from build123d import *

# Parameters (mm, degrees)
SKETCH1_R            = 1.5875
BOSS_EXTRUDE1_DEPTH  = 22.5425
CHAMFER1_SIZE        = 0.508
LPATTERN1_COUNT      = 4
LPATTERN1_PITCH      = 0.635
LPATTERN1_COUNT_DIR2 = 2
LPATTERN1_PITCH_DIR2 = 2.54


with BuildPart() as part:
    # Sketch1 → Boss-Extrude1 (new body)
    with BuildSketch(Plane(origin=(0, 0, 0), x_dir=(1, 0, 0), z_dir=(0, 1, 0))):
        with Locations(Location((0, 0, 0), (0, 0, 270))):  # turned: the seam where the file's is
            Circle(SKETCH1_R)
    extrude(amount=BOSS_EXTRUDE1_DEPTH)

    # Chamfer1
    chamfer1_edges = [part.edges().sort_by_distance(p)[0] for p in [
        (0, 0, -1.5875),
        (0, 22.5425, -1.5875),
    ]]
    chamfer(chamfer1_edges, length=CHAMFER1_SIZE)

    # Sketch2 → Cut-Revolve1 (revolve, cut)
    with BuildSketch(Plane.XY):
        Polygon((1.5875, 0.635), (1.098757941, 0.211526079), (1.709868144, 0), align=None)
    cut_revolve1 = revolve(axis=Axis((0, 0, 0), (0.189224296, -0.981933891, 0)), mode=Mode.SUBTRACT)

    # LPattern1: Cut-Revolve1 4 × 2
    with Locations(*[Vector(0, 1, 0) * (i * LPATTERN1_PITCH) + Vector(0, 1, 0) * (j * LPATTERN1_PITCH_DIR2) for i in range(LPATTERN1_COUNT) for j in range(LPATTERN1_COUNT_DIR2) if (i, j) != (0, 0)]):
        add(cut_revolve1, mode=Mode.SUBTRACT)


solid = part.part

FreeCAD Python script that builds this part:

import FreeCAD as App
import Part
import Sketcher

V = App.Vector
Q = App.Units.Quantity


def edges_at(feature, points):
    """Names of the edges that pass closest to the given points."""
    edges = feature.Shape.Edges
    near = lambda p: min(range(len(edges)), key=lambda i: edges[i].distToShape(Part.Vertex(*p))[0])
    return sorted({f"Edge{near(p) + 1}" for p in points})

doc = App.newDocument("Part")
params = doc.addObject("Spreadsheet::Sheet", "Params")
for row, (alias, value) in enumerate([
    ("sketch1_diameter", "0.125 in"),
    ("pad1_length", "0.8875 in"),
    ("chamfer_size", "0.02 in"),
    ("groove_angle", "360 deg"),
    ("linearpattern_pitch", "0.025 in"),
], start=1):
    params.set(f"A{row}", alias)
    params.set(f"B{row}", "=" + value)
    params.setAlias(f"B{row}", alias)

body = doc.addObject("PartDesign::Body", "Body")

# Sketch on XZ plane
sketch1 = body.newObject("Sketcher::SketchObject", "Sketch")
sketch1.AttachmentSupport = (doc.getObject("XZ_Plane"), [""])
sketch1.MapMode = "FlatFace"
sketch1.addGeometry(Part.Circle(V(0, 0, 0), V(0, 0, 1), 1.6), False)
sketch1.addConstraint([
    Sketcher.Constraint("Coincident", 0, 3, -1, 1),
    Sketcher.Constraint("Diameter", 0, Q("0.125 in")),
])
sketch1.setExpression("Constraints[1]", "Params.sketch1_diameter")
pad1 = body.newObject("PartDesign::Pad", "Pad")
pad1.Profile = sketch1
pad1.setExpression("Length", "Params.pad1_length")
pad1.Reversed = True
doc.recompute()

chamfer = body.newObject("PartDesign::Chamfer", "Chamfer")
chamfer.Base = (pad1, edges_at(pad1, [(0, 0, -1.587), (0, 22.543, -1.587)]))
chamfer.setExpression("Size", "Params.chamfer_size")

# Sketch on XY plane
sketch2 = body.newObject("Sketcher::SketchObject", "Sketch001")
sketch2.AttachmentSupport = (doc.getObject("XY_Plane"), [""])
sketch2.MapMode = "FlatFace"
sketch2.addGeometry([
    Part.LineSegment(V(1.6, 0.6, 0), V(1.1, 0.2, 0)),
    Part.LineSegment(V(1.1, 0.2, 0), V(1.7, 0, 0)),
    Part.LineSegment(V(1.7, 0, 0), V(1.6, 0.6, 0)),
], False)
sketch2.addGeometry(Part.LineSegment(V(-0.1, 0.3, 0), V(0.1, -0.3, 0)), True)  # axis
sketch2.addConstraint([
    Sketcher.Constraint("Coincident", 0, 2, 1, 1),
    Sketcher.Constraint("Coincident", 1, 2, 2, 1),
    Sketcher.Constraint("Coincident", 2, 2, 0, 1),
    Sketcher.Constraint("PointOnObject", 1, 2, -1),
    Sketcher.Constraint("Parallel", 2, 3),
    Sketcher.Constraint("Equal", 0, 1),
    Sketcher.Constraint("Equal", 1, 2),
    Sketcher.Constraint("Equal", 2, 3),
    Sketcher.Constraint("DistanceX", -1, 1, 2, 2, Q("0.0625 in")),
    Sketcher.Constraint("DistanceY", -1, 1, 2, 2, Q("0.025 in")),
    Sketcher.Constraint("DistanceX", -1, 1, 1, 2, Q("1.709868 mm")),
    Sketcher.Constraint("DistanceY", 0, 2, 3, 1, Q("0.105771 mm")),
    Sketcher.Constraint("DistanceX", 3, 1, -1, 1, Q("0.061145 mm")),
])
groove = body.newObject("PartDesign::Groove", "Groove")
groove.Profile = sketch2
groove.ReferenceAxis = (sketch2, ["Axis0"])
groove.setExpression("Angle", "Params.groove_angle")
doc.recompute()

linearpattern = body.newObject("PartDesign::LinearPattern", "LinearPattern")
linearpattern.Originals = [groove]
linearpattern.Direction = (doc.getObject("Y_Axis"), [""])
linearpattern.Mode = "offset"
linearpattern.setExpression("Offset", "Params.linearpattern_pitch")
linearpattern.Occurrences = 8
body.Tip = linearpattern

doc.recompute()
